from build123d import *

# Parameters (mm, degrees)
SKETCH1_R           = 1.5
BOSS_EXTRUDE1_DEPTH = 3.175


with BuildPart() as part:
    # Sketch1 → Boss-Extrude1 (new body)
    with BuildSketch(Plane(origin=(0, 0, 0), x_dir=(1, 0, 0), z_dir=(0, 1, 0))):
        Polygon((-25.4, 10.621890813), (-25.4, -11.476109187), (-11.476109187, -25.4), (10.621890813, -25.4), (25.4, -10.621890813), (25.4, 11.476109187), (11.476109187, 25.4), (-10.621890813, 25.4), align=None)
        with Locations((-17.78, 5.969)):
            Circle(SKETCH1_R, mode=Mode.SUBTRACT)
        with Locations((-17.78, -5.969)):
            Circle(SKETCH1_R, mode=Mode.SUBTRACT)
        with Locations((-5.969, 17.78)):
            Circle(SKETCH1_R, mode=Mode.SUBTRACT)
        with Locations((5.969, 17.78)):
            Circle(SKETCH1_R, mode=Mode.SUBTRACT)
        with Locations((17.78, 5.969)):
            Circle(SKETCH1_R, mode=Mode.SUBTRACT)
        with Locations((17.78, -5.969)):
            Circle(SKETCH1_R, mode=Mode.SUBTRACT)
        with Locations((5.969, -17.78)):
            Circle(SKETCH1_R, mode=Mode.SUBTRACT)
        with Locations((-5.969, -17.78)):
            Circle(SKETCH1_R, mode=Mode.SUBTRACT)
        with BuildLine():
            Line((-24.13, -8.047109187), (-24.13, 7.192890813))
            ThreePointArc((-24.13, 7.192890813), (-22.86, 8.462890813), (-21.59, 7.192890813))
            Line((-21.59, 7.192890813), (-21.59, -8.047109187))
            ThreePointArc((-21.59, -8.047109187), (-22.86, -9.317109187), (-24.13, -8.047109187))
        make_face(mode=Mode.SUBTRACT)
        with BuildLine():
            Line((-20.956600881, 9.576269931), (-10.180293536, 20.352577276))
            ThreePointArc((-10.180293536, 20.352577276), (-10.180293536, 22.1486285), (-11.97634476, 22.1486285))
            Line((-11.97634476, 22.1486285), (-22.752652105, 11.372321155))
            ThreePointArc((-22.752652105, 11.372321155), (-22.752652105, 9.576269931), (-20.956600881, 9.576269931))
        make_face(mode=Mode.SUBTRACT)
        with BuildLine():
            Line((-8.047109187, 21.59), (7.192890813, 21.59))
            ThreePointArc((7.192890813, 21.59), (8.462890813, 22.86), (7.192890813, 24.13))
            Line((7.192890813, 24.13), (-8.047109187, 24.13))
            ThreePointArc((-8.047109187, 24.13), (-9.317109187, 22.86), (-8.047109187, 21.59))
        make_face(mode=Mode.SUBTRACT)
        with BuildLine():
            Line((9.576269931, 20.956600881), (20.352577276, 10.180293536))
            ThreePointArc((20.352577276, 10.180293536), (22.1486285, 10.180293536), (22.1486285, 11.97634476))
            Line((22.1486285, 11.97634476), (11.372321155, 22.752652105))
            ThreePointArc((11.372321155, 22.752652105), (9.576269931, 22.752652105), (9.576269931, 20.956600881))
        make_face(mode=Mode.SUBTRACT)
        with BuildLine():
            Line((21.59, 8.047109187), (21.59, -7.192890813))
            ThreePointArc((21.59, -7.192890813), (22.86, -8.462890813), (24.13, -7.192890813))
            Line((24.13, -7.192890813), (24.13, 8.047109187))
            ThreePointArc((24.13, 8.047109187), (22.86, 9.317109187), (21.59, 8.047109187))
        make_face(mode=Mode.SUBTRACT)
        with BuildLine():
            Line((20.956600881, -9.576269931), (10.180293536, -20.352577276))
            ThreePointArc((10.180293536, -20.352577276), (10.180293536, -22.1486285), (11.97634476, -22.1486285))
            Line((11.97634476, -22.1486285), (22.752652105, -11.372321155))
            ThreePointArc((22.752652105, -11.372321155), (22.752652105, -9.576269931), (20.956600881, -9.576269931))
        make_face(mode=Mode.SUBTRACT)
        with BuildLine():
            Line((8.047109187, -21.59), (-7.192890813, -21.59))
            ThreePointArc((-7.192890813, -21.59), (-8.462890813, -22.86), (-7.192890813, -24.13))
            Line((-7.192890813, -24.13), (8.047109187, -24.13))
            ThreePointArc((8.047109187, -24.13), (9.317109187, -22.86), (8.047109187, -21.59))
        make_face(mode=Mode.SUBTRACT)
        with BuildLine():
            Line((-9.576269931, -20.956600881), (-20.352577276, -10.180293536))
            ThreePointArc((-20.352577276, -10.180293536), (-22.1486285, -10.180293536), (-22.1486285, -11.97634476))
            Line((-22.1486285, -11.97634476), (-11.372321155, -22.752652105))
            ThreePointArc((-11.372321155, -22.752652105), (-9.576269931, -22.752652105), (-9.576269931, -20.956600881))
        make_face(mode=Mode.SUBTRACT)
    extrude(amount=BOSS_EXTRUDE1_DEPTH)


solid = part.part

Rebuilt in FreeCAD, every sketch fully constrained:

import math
import FreeCAD as App
import Part
import Sketcher
from FreeCAD import Vector
Q = App.Units.Quantity

doc = App.newDocument("Part")
params = doc.addObject("Spreadsheet::Sheet", "Params")
for row, (alias, value) in enumerate([
    ("sketch1_radius", "0.05 in"),
    ("sketch1_width", "0.6 in"),
    ("sketch1_length", "0.6 in"),
    ("sketch1_width2", "0.87 in"),
    ("pad1_length", "0.125 in"),
], start=1):
    params.set(f"A{row}", alias)
    params.set(f"B{row}", "=" + value)
    params.setAlias(f"B{row}", alias)

body = doc.addObject("PartDesign::Body", "Body")

# Sketch on XZ plane
sketch1 = body.newObject("Sketcher::SketchObject", "Sketch")
sketch1.AttachmentSupport = (doc.getObject("XZ_Plane"), [""])
sketch1.MapMode = "FlatFace"
sketch1.addGeometry([
    Part.LineSegment(Vector(-25.4, -10.6, 0), Vector(-25.4, 11.5, 0)),  # 0
    Part.LineSegment(Vector(-25.4, 11.5, 0), Vector(-11.5, 25.4, 0)),  # 1
    Part.LineSegment(Vector(-11.5, 25.4, 0), Vector(10.6, 25.4, 0)),  # 2
    Part.LineSegment(Vector(10.6, 25.4, 0), Vector(25.4, 10.6, 0)),  # 3
    Part.LineSegment(Vector(25.4, 10.6, 0), Vector(25.4, -11.5, 0)),  # 4
    Part.LineSegment(Vector(25.4, -11.5, 0), Vector(11.5, -25.4, 0)),  # 5
    Part.LineSegment(Vector(11.5, -25.4, 0), Vector(-10.6, -25.4, 0)),  # 6
    Part.LineSegment(Vector(-10.6, -25.4, 0), Vector(-25.4, -10.6, 0)),  # 7
    Part.LineSegment(Vector(-20.4, 10.2, 0), Vector(-9.6, 21, 0)),  # 8
    Part.ArcOfCircle(Part.Circle(Vector(-10.5, 21.9, 0), Vector(0, 0, 1), 1.3), math.radians(-45), math.radians(135)),  # 9
    Part.LineSegment(Vector(-11.4, 22.8, 0), Vector(-22.1, 12, 0)),  # 10
    Part.ArcOfCircle(Part.Circle(Vector(-21.3, 11.1, 0), Vector(0, 0, 1), 1.3), math.radians(135), math.radians(315)),  # 11
    Part.Circle(Vector(-6, 17.8, 0), Vector(0, 0, 1), 1.5),  # 12
    Part.ArcOfCircle(Part.Circle(Vector(-22.9, 8, 0), Vector(0, 0, 1), 1.3), math.radians(0), math.radians(180)),  # 13
    Part.LineSegment(Vector(-24.1, 8, 0), Vector(-24.1, -7.2, 0)),  # 14
    Part.ArcOfCircle(Part.Circle(Vector(-22.9, -7.2, 0), Vector(0, 0, 1), 1.3), math.radians(180), math.radians(360)),  # 15
    Part.LineSegment(Vector(-21.6, -7.2, 0), Vector(-21.6, 8, 0)),  # 16
    Part.Circle(Vector(-17.8, 6, 0), Vector(0, 0, 1), 1.5),  # 17
    Part.LineSegment(Vector(-7.2, 21.6, 0), Vector(8, 21.6, 0)),  # 18
    Part.ArcOfCircle(Part.Circle(Vector(8, 22.9, 0), Vector(0, 0, 1), 1.3), math.radians(-90), math.radians(90)),  # 19
    Part.LineSegment(Vector(8, 24.1, 0), Vector(-7.2, 24.1, 0)),  # 20
    Part.ArcOfCircle(Part.Circle(Vector(-7.2, 22.9, 0), Vector(0, 0, 1), 1.3), math.radians(90), math.radians(270)),  # 21
    Part.Circle(Vector(6, 17.8, 0), Vector(0, 0, 1), 1.5),  # 22
    Part.LineSegment(Vector(10.2, 20.4, 0), Vector(21, 9.6, 0)),  # 23
    Part.ArcOfCircle(Part.Circle(Vector(21.9, 10.5, 0), Vector(0, 0, 1), 1.3), math.radians(-135), math.radians(45)),  # 24
    Part.LineSegment(Vector(22.8, 11.4, 0), Vector(12, 22.1, 0)),  # 25
    Part.ArcOfCircle(Part.Circle(Vector(11.1, 21.3, 0), Vector(0, 0, 1), 1.3), math.radians(45), math.radians(225)),  # 26
    Part.Circle(Vector(17.8, 6, 0), Vector(0, 0, 1), 1.5),  # 27
    Part.Circle(Vector(-17.8, -6, 0), Vector(0, 0, 1), 1.5),  # 28
    Part.LineSegment(Vector(-10.2, -20.4, 0), Vector(-21, -9.6, 0)),  # 29
    Part.ArcOfCircle(Part.Circle(Vector(-21.9, -10.5, 0), Vector(0, 0, 1), 1.3), math.radians(45), math.radians(225)),  # 30
    Part.LineSegment(Vector(-22.8, -11.4, 0), Vector(-12, -22.1, 0)),  # 31
    Part.ArcOfCircle(Part.Circle(Vector(-11.1, -21.3, 0), Vector(0, 0, 1), 1.3), math.radians(-135), math.radians(45)),  # 32
    Part.Circle(Vector(-6, -17.8, 0), Vector(0, 0, 1), 1.5),  # 33
    Part.LineSegment(Vector(7.2, -21.6, 0), Vector(-8, -21.6, 0)),  # 34
    Part.ArcOfCircle(Part.Circle(Vector(-8, -22.9, 0), Vector(0, 0, 1), 1.3), math.radians(90), math.radians(270)),  # 35
    Part.LineSegment(Vector(-8, -24.1, 0), Vector(7.2, -24.1, 0)),  # 36
    Part.ArcOfCircle(Part.Circle(Vector(7.2, -22.9, 0), Vector(0, 0, 1), 1.3), math.radians(-90), math.radians(90)),  # 37
    Part.Circle(Vector(17.8, -6, 0), Vector(0, 0, 1), 1.5),  # 38
    Part.LineSegment(Vector(21.6, 7.2, 0), Vector(21.6, -8, 0)),  # 39
    Part.ArcOfCircle(Part.Circle(Vector(22.9, -8, 0), Vector(0, 0, 1), 1.3), math.radians(180), math.radians(360)),  # 40
    Part.LineSegment(Vector(24.1, -8, 0), Vector(24.1, 7.2, 0)),  # 41
    Part.ArcOfCircle(Part.Circle(Vector(22.9, 7.2, 0), Vector(0, 0, 1), 1.3), math.radians(0), math.radians(180)),  # 42
    Part.Circle(Vector(6, -17.8, 0), Vector(0, 0, 1), 1.5),  # 43
    Part.LineSegment(Vector(20.4, -10.2, 0), Vector(9.6, -21, 0)),  # 44
    Part.ArcOfCircle(Part.Circle(Vector(10.5, -21.9, 0), Vector(0, 0, 1), 1.3), math.radians(135), math.radians(315)),  # 45
    Part.LineSegment(Vector(11.4, -22.8, 0), Vector(22.1, -12, 0)),  # 46
    Part.ArcOfCircle(Part.Circle(Vector(21.3, -11.1, 0), Vector(0, 0, 1), 1.3), math.radians(-45), math.radians(135)),  # 47
], False)
sketch1.addConstraint([
    Sketcher.Constraint("Coincident", 0, 2, 1, 1),
    Sketcher.Constraint("Coincident", 1, 2, 2, 1),
    Sketcher.Constraint("Coincident", 2, 2, 3, 1),
    Sketcher.Constraint("Coincident", 3, 2, 4, 1),
    Sketcher.Constraint("Coincident", 4, 2, 5, 1),
    Sketcher.Constraint("Coincident", 5, 2, 6, 1),
    Sketcher.Constraint("Coincident", 6, 2, 7, 1),
    Sketcher.Constraint("Coincident", 7, 2, 0, 1),
    Sketcher.Constraint("Tangent", 8, 2, 9, 1),
    Sketcher.Constraint("Tangent", 9, 2, 10, 1),
    Sketcher.Constraint("Tangent", 10, 2, 11, 1),
    Sketcher.Constraint("Tangent", 11, 2, 8, 1),
    Sketcher.Constraint("Tangent", 13, 2, 14, 1),
    Sketcher.Constraint("Tangent", 14, 2, 15, 1),
    Sketcher.Constraint("Tangent", 15, 2, 16, 1),
    Sketcher.Constraint("Tangent", 16, 2, 13, 1),
    Sketcher.Constraint("Tangent", 18, 2, 19, 1),
    Sketcher.Constraint("Tangent", 19, 2, 20, 1),
    Sketcher.Constraint("Tangent", 20, 2, 21, 1),
    Sketcher.Constraint("Tangent", 21, 2, 18, 1),
    Sketcher.Constraint("Tangent", 23, 2, 24, 1),
    Sketcher.Constraint("Tangent", 24, 2, 25, 1),
    Sketcher.Constraint("Tangent", 25, 2, 26, 1),
    Sketcher.Constraint("Tangent", 26, 2, 23, 1),
    Sketcher.Constraint("Tangent", 29, 2, 30, 1),
    Sketcher.Constraint("Tangent", 30, 2, 31, 1),
    Sketcher.Constraint("Tangent", 31, 2, 32, 1),
    Sketcher.Constraint("Tangent", 32, 2, 29, 1),
    Sketcher.Constraint("Tangent", 34, 2, 35, 1),
    Sketcher.Constraint("Tangent", 35, 2, 36, 1),
    Sketcher.Constraint("Tangent", 36, 2, 37, 1),
    Sketcher.Constraint("Tangent", 37, 2, 34, 1),
    Sketcher.Constraint("Tangent", 39, 2, 40, 1),
    Sketcher.Constraint("Tangent", 40, 2, 41, 1),
    Sketcher.Constraint("Tangent", 41, 2, 42, 1),
    Sketcher.Constraint("Tangent", 42, 2, 39, 1),
    Sketcher.Constraint("Tangent", 44, 2, 45, 1),
    Sketcher.Constraint("Tangent", 45, 2, 46, 1),
    Sketcher.Constraint("Tangent", 46, 2, 47, 1),
    Sketcher.Constraint("Tangent", 47, 2, 44, 1),
    Sketcher.Constraint("Vertical", 0),
    Sketcher.Constraint("Horizontal", 2),
    Sketcher.Constraint("Vertical", 4),
    Sketcher.Constraint("Horizontal", 6),
    Sketcher.Constraint("Vertical", 14),
    Sketcher.Constraint("Vertical", 16),
    Sketcher.Constraint("Horizontal", 18),
    Sketcher.Constraint("Horizontal", 20),
    Sketcher.Constraint("Horizontal", 34),
    Sketcher.Constraint("Horizontal", 36),
    Sketcher.Constraint("Vertical", 39),
    Sketcher.Constraint("Vertical", 41),
    Sketcher.Constraint("Equal", 9, 11),
    Sketcher.Constraint("Equal", 11, 13),
    Sketcher.Constraint("Equal", 12, 17),
    Sketcher.Constraint("Equal", 15, 19),
    Sketcher.Constraint("Equal", 17, 22),
    Sketcher.Constraint("Equal", 21, 24),
    Sketcher.Constraint("Equal", 24, 26),
    Sketcher.Constraint("Equal", 22, 27),
    Sketcher.Constraint("Equal", 27, 28),
    Sketcher.Constraint("Equal", 26, 30),
    Sketcher.Constraint("Equal", 30, 32),
    Sketcher.Constraint("Equal", 28, 33),
    Sketcher.Constraint("Equal", 32, 35),
    Sketcher.Constraint("Equal", 33, 38),
    Sketcher.Constraint("Equal", 37, 40),
    Sketcher.Constraint("Equal", 38, 43),
    Sketcher.Constraint("Equal", 42, 45),
    Sketcher.Constraint("Equal", 45, 47),
    Sketcher.Constraint("Symmetric", 27, 3, 28, 3, -1, 1),
    Sketcher.Constraint("Symmetric", 24, 3, 30, 3, -1, 1),
    Sketcher.Constraint("Symmetric", 26, 3, 32, 3, -1, 1),
    Sketcher.Constraint("Symmetric", 22, 3, 33, 3, -1, 1),
    Sketcher.Constraint("Symmetric", 19, 3, 35, 3, -1, 1),
    Sketcher.Constraint("Symmetric", 17, 3, 38, 3, -1, 1),
    Sketcher.Constraint("Symmetric", 13, 3, 40, 3, -1, 1),
    Sketcher.Constraint("Symmetric", 12, 3, 43, 3, -1, 1),
    Sketcher.Constraint("Symmetric", 9, 3, 45, 3, -1, 1),
    Sketcher.Constraint("Symmetric", 11, 3, 47, 3, -1, 1),
    Sketcher.Constraint("Symmetric", 0, 2, 4, 2, -1, 1),
    Sketcher.Constraint("Symmetric", 1, 2, 5, 2, -1, 1),
    Sketcher.Constraint("Symmetric", 12, 3, 22, 3, -2),
    Sketcher.Constraint("Symmetric", 17, 3, 27, 3, -2),
    Sketcher.Constraint("Perpendicular", 1, 3),
    Sketcher.Constraint("Perpendicular", 5, 7),
    Sketcher.Constraint("Perpendicular", 7, 8),
    Sketcher.Constraint("Perpendicular", 10, 23),
    Sketcher.Constraint("Equal", 2, 6),
    Sketcher.Constraint("Equal", 20, 34),
    Sketcher.Constraint("Equal", 6, 0),
    Sketcher.Constraint("Equal", 36, 14),
    Sketcher.Constraint("Equal", 16, 39),
    Sketcher.Constraint("Equal", 10, 23),
    Sketcher.Constraint("Radius", 9, Q("0.05 in")),
    Sketcher.Constraint("DistanceX", 18, 1, 18, 2, Q("0.6 in")),
    Sketcher.Constraint("DistanceX", 0, 2, -1, 1, Q("1 in")),
    Sketcher.Constraint("DistanceY", -1, 1, 1, 2, Q("1 in")),
    Sketcher.Constraint("Distance", 8, Q("0.6 in")),
    Sketcher.Constraint("DistanceX", 2, 1, 2, 2, Q("0.87 in")),
    Sketcher.Constraint("DistanceY", -1, 1, 12, 3, Q("0.7 in")),
    Sketcher.Constraint("DistanceX", 13, 3, -1, 1, Q("0.9 in")),
    Sketcher.Constraint("DistanceX", 17, 3, -1, 1, Q("0.7 in")),
    Sketcher.Constraint("DistanceY", -1, 1, 19, 3, Q("0.9 in")),
    Sketcher.Constraint("Diameter", 12, 3.0),
    Sketcher.Constraint("DistanceX", 12, 3, -1, 1, Q("0.235 in")),
    Sketcher.Constraint("DistanceY", -1, 1, 17, 3, Q("0.235 in")),
    Sketcher.Constraint("DistanceY", -1, 1, 8, 2, 20.956601),
    Sketcher.Constraint("DistanceX", -1, 1, 23, 2, 20.956601),
    Sketcher.Constraint("DistanceY", -1, 1, 13, 3, 8.047109),
    Sketcher.Constraint("DistanceX", -1, 1, 19, 3, 8.047109),
    Sketcher.Constraint("DistanceY", -1, 1, 0, 2, 11.476109),
    Sketcher.Constraint("DistanceX", 8, 2, -1, 1, 9.57627),
    Sketcher.Constraint("DistanceY", -1, 1, 23, 2, 9.57627),
])
sketch1.setExpression("Constraints[94]", "Params.sketch1_radius")
sketch1.setExpression("Constraints[95]", "Params.sketch1_width")
sketch1.setExpression("Constraints[98]", "Params.sketch1_length")
sketch1.setExpression("Constraints[99]", "Params.sketch1_width2")
pad1 = body.newObject("PartDesign::Pad", "Pad")
pad1.Profile = sketch1
pad1.setExpression("Length", "Params.pad1_length")
pad1.Reversed = True

doc.recompute()
